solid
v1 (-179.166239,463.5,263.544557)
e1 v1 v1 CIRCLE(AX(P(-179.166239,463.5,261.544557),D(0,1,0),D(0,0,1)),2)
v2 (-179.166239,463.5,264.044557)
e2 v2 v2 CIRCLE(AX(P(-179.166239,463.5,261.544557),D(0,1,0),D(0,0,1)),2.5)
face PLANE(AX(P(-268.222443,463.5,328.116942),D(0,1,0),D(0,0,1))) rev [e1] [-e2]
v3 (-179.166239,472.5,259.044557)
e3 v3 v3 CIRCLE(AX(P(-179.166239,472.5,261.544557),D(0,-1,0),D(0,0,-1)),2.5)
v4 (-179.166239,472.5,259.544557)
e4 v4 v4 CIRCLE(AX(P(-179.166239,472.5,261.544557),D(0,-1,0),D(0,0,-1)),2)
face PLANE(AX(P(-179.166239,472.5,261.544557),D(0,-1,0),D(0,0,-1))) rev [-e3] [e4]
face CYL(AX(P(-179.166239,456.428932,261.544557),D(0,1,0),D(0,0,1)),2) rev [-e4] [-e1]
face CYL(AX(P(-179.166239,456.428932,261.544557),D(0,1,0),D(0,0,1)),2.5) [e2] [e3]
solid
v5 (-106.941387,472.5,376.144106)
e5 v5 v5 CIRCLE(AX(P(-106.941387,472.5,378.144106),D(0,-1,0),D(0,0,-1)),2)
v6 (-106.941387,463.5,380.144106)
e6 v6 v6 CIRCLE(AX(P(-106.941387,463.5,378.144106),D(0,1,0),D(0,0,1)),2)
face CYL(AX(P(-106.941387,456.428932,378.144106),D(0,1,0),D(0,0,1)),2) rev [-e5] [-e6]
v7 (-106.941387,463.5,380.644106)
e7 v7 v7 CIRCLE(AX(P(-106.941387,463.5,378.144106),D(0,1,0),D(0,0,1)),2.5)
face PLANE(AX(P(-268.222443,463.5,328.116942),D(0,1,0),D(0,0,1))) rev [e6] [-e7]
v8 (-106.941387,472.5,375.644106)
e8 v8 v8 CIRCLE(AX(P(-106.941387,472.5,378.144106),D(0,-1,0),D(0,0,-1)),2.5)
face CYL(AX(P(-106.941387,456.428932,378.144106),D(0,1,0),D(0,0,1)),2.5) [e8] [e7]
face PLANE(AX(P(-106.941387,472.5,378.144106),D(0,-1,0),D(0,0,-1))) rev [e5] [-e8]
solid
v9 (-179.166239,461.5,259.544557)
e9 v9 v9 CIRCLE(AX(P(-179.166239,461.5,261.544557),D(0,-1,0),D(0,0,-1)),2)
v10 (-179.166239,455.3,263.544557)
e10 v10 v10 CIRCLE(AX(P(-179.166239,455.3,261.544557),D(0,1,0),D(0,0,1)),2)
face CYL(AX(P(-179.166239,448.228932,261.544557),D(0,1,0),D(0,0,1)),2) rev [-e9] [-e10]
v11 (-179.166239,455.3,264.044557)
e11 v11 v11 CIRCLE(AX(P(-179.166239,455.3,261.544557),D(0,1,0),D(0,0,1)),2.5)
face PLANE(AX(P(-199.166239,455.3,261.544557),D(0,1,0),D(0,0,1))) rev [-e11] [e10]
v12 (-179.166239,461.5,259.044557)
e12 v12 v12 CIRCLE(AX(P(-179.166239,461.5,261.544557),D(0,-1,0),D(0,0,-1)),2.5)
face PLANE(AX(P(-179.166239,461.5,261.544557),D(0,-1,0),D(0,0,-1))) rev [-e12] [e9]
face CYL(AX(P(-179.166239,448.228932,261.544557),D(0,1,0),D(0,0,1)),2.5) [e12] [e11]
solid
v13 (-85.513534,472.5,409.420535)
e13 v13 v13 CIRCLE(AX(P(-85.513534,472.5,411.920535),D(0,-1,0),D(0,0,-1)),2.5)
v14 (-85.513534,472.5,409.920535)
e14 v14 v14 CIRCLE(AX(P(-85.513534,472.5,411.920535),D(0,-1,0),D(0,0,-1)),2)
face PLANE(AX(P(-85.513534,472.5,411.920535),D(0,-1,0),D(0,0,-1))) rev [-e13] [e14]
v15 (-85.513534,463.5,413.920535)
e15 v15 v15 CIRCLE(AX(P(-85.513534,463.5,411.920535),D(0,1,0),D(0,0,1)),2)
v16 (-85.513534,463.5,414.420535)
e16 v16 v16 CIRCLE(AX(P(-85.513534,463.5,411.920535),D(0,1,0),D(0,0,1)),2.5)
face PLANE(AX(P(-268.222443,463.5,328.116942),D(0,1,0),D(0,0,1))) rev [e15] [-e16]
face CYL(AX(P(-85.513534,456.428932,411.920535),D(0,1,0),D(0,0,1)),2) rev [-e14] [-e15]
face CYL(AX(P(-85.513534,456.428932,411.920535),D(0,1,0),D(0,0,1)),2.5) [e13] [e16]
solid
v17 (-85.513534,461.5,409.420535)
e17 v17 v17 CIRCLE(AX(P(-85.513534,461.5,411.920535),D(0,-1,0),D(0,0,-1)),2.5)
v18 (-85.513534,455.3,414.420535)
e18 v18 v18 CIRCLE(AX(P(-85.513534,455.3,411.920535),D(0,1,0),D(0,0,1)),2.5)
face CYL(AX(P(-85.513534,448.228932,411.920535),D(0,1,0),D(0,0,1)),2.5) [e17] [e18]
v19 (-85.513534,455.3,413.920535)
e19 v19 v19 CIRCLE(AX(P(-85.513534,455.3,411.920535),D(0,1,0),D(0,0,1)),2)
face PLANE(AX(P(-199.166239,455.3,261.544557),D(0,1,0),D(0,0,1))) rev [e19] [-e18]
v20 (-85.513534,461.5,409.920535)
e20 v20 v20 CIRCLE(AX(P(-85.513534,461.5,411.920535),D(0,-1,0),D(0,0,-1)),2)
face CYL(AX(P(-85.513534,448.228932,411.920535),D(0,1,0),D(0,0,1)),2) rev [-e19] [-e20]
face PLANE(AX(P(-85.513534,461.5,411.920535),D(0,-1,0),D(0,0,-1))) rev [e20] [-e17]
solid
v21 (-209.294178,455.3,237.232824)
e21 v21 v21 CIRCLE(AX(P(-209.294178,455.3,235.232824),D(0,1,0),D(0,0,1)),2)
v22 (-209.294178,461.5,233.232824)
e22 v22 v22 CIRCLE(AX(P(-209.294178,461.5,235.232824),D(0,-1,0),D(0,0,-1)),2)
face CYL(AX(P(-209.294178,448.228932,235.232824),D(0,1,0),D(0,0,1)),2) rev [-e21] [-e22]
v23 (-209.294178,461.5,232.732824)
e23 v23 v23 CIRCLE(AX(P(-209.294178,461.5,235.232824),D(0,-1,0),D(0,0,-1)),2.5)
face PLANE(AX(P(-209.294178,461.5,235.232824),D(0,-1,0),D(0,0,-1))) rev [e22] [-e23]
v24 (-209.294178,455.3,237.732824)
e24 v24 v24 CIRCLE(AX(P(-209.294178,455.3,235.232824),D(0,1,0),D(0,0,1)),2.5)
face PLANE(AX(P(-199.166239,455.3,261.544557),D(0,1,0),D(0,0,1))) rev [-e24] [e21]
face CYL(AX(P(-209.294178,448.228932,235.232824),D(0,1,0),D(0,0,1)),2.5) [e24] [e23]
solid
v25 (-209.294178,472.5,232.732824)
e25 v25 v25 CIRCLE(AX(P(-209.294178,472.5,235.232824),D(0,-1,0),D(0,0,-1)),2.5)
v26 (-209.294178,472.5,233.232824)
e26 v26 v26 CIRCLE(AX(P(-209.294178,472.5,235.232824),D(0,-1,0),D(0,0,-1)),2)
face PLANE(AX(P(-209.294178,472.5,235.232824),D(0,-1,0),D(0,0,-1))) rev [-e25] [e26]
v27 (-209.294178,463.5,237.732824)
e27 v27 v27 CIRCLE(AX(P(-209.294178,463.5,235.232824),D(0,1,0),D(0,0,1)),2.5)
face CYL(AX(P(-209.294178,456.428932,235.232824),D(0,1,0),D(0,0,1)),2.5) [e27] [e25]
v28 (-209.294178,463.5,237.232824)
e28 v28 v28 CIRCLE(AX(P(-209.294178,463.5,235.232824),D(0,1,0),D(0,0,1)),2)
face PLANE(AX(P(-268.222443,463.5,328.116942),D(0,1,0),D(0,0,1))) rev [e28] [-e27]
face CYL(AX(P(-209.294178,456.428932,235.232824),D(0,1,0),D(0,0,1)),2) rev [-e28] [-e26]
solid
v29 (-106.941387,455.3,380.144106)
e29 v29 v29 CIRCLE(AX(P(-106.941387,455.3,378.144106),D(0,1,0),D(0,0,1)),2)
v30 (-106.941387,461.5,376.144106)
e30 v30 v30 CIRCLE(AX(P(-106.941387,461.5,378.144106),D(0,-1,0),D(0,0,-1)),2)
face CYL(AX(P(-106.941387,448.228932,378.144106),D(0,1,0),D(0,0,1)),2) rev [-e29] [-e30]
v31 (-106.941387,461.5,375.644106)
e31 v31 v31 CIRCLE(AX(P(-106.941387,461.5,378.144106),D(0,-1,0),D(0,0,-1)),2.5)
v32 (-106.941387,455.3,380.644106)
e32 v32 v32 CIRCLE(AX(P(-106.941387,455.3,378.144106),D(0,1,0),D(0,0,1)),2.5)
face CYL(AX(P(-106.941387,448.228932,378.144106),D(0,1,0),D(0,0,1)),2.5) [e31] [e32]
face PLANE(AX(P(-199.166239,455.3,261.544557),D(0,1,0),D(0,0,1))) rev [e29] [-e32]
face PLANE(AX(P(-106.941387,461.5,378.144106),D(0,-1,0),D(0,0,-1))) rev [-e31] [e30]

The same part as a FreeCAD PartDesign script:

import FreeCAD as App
import Part
import Sketcher
from FreeCAD import Vector
Q = App.Units.Quantity

doc = App.newDocument("Part")
body = doc.addObject("PartDesign::Body", "Body")

sketch1 = body.newObject("Sketcher::SketchObject", "Sketch")
sketch1.AttachmentSupport = (doc.getObject("XZ_Plane"), [""])
sketch1.MapMode = "FlatFace"
sketch1.AttachmentOffset = App.Placement(Vector(0, 0, -472.5), App.Rotation())
sketch1.addGeometry([
    Part.Circle(Vector(-209.3, 235.2, 0), Vector(0, 0, 1), 2.5),
    Part.Circle(Vector(-209.3, 235.2, 0), Vector(0, 0, 1), 2),
], False)
sketch1.addConstraint([
    Sketcher.Constraint("Coincident", 1, 3, 0, 3),
    Sketcher.Constraint("Diameter", 0, Q("5 mm")),
    Sketcher.Constraint("Diameter", 1, Q("4 mm")),
    Sketcher.Constraint("DistanceX", 0, 3, -1, 1, Q("209.294178 mm")),
    Sketcher.Constraint("DistanceY", -1, 1, 0, 3, Q("235.232824 mm")),
])
pad1 = body.newObject("PartDesign::Pad", "Pad")
pad1.Profile = sketch1
pad1.Length = 9
body2 = doc.addObject("PartDesign::Body", "Body001")

sketch2 = body2.newObject("Sketcher::SketchObject", "Sketch001")
sketch2.AttachmentSupport = (doc.getObject("XZ_Plane001"), [""])
sketch2.MapMode = "FlatFace"
sketch2.AttachmentOffset = App.Placement(Vector(0, 0, -472.5), App.Rotation())
sketch2.addGeometry([
    Part.Circle(Vector(-179.2, 261.5, 0), Vector(0, 0, 1), 2.5),
    Part.Circle(Vector(-179.2, 261.5, 0), Vector(0, 0, 1), 2),
], False)
sketch2.addConstraint([
    Sketcher.Constraint("Coincident", 1, 3, 0, 3),
    Sketcher.Constraint("Diameter", 0, Q("5 mm")),
    Sketcher.Constraint("Diameter", 1, Q("4 mm")),
    Sketcher.Constraint("DistanceX", 0, 3, -1, 1, Q("179.166239 mm")),
    Sketcher.Constraint("DistanceY", -1, 1, 0, 3, Q("261.544557 mm")),
])
pad2 = body2.newObject("PartDesign::Pad", "Pad001")
pad2.Profile = sketch2
pad2.Length = 9
body3 = doc.addObject("PartDesign::Body", "Body002")

sketch3 = body3.newObject("Sketcher::SketchObject", "Sketch002")
sketch3.AttachmentSupport = (doc.getObject("XZ_Plane002"), [""])
sketch3.MapMode = "FlatFace"
sketch3.AttachmentOffset = App.Placement(Vector(0, 0, -472.5), App.Rotation())
sketch3.addGeometry([
    Part.Circle(Vector(-106.9, 378.1, 0), Vector(0, 0, 1), 2.5),
    Part.Circle(Vector(-106.9, 378.1, 0), Vector(0, 0, 1), 2),
], False)
sketch3.addConstraint([
    Sketcher.Constraint("Coincident", 1, 3, 0, 3),
    Sketcher.Constraint("Diameter", 0, Q("5 mm")),
    Sketcher.Constraint("Diameter", 1, Q("4 mm")),
    Sketcher.Constraint("DistanceX", 0, 3, -1, 1, Q("106.941387 mm")),
    Sketcher.Constraint("DistanceY", -1, 1, 0, 3, Q("378.144106 mm")),
])
pad3 = body3.newObject("PartDesign::Pad", "Pad002")
pad3.Profile = sketch3
pad3.Length = 9
body4 = doc.addObject("PartDesign::Body", "Body003")

sketch4 = body4.newObject("Sketcher::SketchObject", "Sketch003")
sketch4.AttachmentSupport = (doc.getObject("XZ_Plane003"), [""])
sketch4.MapMode = "FlatFace"
sketch4.AttachmentOffset = App.Placement(Vector(0, 0, -472.5), App.Rotation())
sketch4.addGeometry([
    Part.Circle(Vector(-85.5, 411.9, 0), Vector(0, 0, 1), 2.5),
    Part.Circle(Vector(-85.5, 411.9, 0), Vector(0, 0, 1), 2),
], False)
sketch4.addConstraint([
    Sketcher.Constraint("Coincident", 1, 3, 0, 3),
    Sketcher.Constraint("Diameter", 0, Q("5 mm")),
    Sketcher.Constraint("Diameter", 1, Q("4 mm")),
    Sketcher.Constraint("DistanceX", 0, 3, -1, 1, Q("85.513534 mm")),
    Sketcher.Constraint("DistanceY", -1, 1, 0, 3, Q("411.920535 mm")),
])
pad4 = body4.newObject("PartDesign::Pad", "Pad003")
pad4.Profile = sketch4
pad4.Length = 9
body5 = doc.addObject("PartDesign::Body", "Body004")

sketch5 = body5.newObject("Sketcher::SketchObject", "Sketch004")
sketch5.AttachmentSupport = (doc.getObject("XZ_Plane004"), [""])
sketch5.MapMode = "FlatFace"
sketch5.AttachmentOffset = App.Placement(Vector(0, 0, -461.5), App.Rotation())
sketch5.addGeometry([
    Part.Circle(Vector(-209.3, 235.2, 0), Vector(0, 0, 1), 2.5),
    Part.Circle(Vector(-209.3, 235.2, 0), Vector(0, 0, 1), 2),
], False)
sketch5.addConstraint([
    Sketcher.Constraint("Coincident", 1, 3, 0, 3),
    Sketcher.Constraint("Diameter", 0, Q("5 mm")),
    Sketcher.Constraint("Diameter", 1, Q("4 mm")),
    Sketcher.Constraint("DistanceX", 0, 3, -1, 1, Q("209.294178 mm")),
    Sketcher.Constraint("DistanceY", -1, 1, 0, 3, Q("235.232824 mm")),
])
pad5 = body5.newObject("PartDesign::Pad", "Pad004")
pad5.Profile = sketch5
pad5.Length = 6.2
body6 = doc.addObject("PartDesign::Body", "Body005")

sketch6 = body6.newObject("Sketcher::SketchObject", "Sketch005")
sketch6.AttachmentSupport = (doc.getObject("XZ_Plane005"), [""])
sketch6.MapMode = "FlatFace"
sketch6.AttachmentOffset = App.Placement(Vector(0, 0, -461.5), App.Rotation())
sketch6.addGeometry([
    Part.Circle(Vector(-179.2, 261.5, 0), Vector(0, 0, 1), 2.5),
    Part.Circle(Vector(-179.2, 261.5, 0), Vector(0, 0, 1), 2),
], False)
sketch6.addConstraint([
    Sketcher.Constraint("Coincident", 1, 3, 0, 3),
    Sketcher.Constraint("Diameter", 0, Q("5 mm")),
    Sketcher.Constraint("Diameter", 1, Q("4 mm")),
    Sketcher.Constraint("DistanceX", 0, 3, -1, 1, Q("179.166239 mm")),
    Sketcher.Constraint("DistanceY", -1, 1, 0, 3, Q("261.544557 mm")),
])
pad6 = body6.newObject("PartDesign::Pad", "Pad005")
pad6.Profile = sketch6
pad6.Length = 6.2
body7 = doc.addObject("PartDesign::Body", "Body006")

sketch7 = body7.newObject("Sketcher::SketchObject", "Sketch006")
sketch7.AttachmentSupport = (doc.getObject("XZ_Plane006"), [""])
sketch7.MapMode = "FlatFace"
sketch7.AttachmentOffset = App.Placement(Vector(0, 0, -461.5), App.Rotation())
sketch7.addGeometry([
    Part.Circle(Vector(-106.9, 378.1, 0), Vector(0, 0, 1), 2.5),
    Part.Circle(Vector(-106.9, 378.1, 0), Vector(0, 0, 1), 2),
], False)
sketch7.addConstraint([
    Sketcher.Constraint("Coincident", 1, 3, 0, 3),
    Sketcher.Constraint("Diameter", 0, Q("5 mm")),
    Sketcher.Constraint("Diameter", 1, Q("4 mm")),
    Sketcher.Constraint("DistanceX", 0, 3, -1, 1, Q("106.941387 mm")),
    Sketcher.Constraint("DistanceY", -1, 1, 0, 3, Q("378.144106 mm")),
])
pad7 = body7.newObject("PartDesign::Pad", "Pad006")
pad7.Profile = sketch7
pad7.Length = 6.2
body8 = doc.addObject("PartDesign::Body", "Body007")

sketch8 = body8.newObject("Sketcher::SketchObject", "Sketch007")
sketch8.AttachmentSupport = (doc.getObject("XZ_Plane007"), [""])
sketch8.MapMode = "FlatFace"
sketch8.AttachmentOffset = App.Placement(Vector(0, 0, -461.5), App.Rotation())
sketch8.addGeometry([
    Part.Circle(Vector(-85.5, 411.9, 0), Vector(0, 0, 1), 2.5),
    Part.Circle(Vector(-85.5, 411.9, 0), Vector(0, 0, 1), 2),
], False)
sketch8.addConstraint([
    Sketcher.Constraint("Coincident", 1, 3, 0, 3),
    Sketcher.Constraint("Diameter", 0, Q("5 mm")),
    Sketcher.Constraint("Diameter", 1, Q("4 mm")),
    Sketcher.Constraint("DistanceX", 0, 3, -1, 1, Q("85.513534 mm")),
    Sketcher.Constraint("DistanceY", -1, 1, 0, 3, Q("411.920535 mm")),
])
pad8 = body8.newObject("PartDesign::Pad", "Pad007")
pad8.Profile = sketch8
pad8.Length = 6.2

doc.recompute()
